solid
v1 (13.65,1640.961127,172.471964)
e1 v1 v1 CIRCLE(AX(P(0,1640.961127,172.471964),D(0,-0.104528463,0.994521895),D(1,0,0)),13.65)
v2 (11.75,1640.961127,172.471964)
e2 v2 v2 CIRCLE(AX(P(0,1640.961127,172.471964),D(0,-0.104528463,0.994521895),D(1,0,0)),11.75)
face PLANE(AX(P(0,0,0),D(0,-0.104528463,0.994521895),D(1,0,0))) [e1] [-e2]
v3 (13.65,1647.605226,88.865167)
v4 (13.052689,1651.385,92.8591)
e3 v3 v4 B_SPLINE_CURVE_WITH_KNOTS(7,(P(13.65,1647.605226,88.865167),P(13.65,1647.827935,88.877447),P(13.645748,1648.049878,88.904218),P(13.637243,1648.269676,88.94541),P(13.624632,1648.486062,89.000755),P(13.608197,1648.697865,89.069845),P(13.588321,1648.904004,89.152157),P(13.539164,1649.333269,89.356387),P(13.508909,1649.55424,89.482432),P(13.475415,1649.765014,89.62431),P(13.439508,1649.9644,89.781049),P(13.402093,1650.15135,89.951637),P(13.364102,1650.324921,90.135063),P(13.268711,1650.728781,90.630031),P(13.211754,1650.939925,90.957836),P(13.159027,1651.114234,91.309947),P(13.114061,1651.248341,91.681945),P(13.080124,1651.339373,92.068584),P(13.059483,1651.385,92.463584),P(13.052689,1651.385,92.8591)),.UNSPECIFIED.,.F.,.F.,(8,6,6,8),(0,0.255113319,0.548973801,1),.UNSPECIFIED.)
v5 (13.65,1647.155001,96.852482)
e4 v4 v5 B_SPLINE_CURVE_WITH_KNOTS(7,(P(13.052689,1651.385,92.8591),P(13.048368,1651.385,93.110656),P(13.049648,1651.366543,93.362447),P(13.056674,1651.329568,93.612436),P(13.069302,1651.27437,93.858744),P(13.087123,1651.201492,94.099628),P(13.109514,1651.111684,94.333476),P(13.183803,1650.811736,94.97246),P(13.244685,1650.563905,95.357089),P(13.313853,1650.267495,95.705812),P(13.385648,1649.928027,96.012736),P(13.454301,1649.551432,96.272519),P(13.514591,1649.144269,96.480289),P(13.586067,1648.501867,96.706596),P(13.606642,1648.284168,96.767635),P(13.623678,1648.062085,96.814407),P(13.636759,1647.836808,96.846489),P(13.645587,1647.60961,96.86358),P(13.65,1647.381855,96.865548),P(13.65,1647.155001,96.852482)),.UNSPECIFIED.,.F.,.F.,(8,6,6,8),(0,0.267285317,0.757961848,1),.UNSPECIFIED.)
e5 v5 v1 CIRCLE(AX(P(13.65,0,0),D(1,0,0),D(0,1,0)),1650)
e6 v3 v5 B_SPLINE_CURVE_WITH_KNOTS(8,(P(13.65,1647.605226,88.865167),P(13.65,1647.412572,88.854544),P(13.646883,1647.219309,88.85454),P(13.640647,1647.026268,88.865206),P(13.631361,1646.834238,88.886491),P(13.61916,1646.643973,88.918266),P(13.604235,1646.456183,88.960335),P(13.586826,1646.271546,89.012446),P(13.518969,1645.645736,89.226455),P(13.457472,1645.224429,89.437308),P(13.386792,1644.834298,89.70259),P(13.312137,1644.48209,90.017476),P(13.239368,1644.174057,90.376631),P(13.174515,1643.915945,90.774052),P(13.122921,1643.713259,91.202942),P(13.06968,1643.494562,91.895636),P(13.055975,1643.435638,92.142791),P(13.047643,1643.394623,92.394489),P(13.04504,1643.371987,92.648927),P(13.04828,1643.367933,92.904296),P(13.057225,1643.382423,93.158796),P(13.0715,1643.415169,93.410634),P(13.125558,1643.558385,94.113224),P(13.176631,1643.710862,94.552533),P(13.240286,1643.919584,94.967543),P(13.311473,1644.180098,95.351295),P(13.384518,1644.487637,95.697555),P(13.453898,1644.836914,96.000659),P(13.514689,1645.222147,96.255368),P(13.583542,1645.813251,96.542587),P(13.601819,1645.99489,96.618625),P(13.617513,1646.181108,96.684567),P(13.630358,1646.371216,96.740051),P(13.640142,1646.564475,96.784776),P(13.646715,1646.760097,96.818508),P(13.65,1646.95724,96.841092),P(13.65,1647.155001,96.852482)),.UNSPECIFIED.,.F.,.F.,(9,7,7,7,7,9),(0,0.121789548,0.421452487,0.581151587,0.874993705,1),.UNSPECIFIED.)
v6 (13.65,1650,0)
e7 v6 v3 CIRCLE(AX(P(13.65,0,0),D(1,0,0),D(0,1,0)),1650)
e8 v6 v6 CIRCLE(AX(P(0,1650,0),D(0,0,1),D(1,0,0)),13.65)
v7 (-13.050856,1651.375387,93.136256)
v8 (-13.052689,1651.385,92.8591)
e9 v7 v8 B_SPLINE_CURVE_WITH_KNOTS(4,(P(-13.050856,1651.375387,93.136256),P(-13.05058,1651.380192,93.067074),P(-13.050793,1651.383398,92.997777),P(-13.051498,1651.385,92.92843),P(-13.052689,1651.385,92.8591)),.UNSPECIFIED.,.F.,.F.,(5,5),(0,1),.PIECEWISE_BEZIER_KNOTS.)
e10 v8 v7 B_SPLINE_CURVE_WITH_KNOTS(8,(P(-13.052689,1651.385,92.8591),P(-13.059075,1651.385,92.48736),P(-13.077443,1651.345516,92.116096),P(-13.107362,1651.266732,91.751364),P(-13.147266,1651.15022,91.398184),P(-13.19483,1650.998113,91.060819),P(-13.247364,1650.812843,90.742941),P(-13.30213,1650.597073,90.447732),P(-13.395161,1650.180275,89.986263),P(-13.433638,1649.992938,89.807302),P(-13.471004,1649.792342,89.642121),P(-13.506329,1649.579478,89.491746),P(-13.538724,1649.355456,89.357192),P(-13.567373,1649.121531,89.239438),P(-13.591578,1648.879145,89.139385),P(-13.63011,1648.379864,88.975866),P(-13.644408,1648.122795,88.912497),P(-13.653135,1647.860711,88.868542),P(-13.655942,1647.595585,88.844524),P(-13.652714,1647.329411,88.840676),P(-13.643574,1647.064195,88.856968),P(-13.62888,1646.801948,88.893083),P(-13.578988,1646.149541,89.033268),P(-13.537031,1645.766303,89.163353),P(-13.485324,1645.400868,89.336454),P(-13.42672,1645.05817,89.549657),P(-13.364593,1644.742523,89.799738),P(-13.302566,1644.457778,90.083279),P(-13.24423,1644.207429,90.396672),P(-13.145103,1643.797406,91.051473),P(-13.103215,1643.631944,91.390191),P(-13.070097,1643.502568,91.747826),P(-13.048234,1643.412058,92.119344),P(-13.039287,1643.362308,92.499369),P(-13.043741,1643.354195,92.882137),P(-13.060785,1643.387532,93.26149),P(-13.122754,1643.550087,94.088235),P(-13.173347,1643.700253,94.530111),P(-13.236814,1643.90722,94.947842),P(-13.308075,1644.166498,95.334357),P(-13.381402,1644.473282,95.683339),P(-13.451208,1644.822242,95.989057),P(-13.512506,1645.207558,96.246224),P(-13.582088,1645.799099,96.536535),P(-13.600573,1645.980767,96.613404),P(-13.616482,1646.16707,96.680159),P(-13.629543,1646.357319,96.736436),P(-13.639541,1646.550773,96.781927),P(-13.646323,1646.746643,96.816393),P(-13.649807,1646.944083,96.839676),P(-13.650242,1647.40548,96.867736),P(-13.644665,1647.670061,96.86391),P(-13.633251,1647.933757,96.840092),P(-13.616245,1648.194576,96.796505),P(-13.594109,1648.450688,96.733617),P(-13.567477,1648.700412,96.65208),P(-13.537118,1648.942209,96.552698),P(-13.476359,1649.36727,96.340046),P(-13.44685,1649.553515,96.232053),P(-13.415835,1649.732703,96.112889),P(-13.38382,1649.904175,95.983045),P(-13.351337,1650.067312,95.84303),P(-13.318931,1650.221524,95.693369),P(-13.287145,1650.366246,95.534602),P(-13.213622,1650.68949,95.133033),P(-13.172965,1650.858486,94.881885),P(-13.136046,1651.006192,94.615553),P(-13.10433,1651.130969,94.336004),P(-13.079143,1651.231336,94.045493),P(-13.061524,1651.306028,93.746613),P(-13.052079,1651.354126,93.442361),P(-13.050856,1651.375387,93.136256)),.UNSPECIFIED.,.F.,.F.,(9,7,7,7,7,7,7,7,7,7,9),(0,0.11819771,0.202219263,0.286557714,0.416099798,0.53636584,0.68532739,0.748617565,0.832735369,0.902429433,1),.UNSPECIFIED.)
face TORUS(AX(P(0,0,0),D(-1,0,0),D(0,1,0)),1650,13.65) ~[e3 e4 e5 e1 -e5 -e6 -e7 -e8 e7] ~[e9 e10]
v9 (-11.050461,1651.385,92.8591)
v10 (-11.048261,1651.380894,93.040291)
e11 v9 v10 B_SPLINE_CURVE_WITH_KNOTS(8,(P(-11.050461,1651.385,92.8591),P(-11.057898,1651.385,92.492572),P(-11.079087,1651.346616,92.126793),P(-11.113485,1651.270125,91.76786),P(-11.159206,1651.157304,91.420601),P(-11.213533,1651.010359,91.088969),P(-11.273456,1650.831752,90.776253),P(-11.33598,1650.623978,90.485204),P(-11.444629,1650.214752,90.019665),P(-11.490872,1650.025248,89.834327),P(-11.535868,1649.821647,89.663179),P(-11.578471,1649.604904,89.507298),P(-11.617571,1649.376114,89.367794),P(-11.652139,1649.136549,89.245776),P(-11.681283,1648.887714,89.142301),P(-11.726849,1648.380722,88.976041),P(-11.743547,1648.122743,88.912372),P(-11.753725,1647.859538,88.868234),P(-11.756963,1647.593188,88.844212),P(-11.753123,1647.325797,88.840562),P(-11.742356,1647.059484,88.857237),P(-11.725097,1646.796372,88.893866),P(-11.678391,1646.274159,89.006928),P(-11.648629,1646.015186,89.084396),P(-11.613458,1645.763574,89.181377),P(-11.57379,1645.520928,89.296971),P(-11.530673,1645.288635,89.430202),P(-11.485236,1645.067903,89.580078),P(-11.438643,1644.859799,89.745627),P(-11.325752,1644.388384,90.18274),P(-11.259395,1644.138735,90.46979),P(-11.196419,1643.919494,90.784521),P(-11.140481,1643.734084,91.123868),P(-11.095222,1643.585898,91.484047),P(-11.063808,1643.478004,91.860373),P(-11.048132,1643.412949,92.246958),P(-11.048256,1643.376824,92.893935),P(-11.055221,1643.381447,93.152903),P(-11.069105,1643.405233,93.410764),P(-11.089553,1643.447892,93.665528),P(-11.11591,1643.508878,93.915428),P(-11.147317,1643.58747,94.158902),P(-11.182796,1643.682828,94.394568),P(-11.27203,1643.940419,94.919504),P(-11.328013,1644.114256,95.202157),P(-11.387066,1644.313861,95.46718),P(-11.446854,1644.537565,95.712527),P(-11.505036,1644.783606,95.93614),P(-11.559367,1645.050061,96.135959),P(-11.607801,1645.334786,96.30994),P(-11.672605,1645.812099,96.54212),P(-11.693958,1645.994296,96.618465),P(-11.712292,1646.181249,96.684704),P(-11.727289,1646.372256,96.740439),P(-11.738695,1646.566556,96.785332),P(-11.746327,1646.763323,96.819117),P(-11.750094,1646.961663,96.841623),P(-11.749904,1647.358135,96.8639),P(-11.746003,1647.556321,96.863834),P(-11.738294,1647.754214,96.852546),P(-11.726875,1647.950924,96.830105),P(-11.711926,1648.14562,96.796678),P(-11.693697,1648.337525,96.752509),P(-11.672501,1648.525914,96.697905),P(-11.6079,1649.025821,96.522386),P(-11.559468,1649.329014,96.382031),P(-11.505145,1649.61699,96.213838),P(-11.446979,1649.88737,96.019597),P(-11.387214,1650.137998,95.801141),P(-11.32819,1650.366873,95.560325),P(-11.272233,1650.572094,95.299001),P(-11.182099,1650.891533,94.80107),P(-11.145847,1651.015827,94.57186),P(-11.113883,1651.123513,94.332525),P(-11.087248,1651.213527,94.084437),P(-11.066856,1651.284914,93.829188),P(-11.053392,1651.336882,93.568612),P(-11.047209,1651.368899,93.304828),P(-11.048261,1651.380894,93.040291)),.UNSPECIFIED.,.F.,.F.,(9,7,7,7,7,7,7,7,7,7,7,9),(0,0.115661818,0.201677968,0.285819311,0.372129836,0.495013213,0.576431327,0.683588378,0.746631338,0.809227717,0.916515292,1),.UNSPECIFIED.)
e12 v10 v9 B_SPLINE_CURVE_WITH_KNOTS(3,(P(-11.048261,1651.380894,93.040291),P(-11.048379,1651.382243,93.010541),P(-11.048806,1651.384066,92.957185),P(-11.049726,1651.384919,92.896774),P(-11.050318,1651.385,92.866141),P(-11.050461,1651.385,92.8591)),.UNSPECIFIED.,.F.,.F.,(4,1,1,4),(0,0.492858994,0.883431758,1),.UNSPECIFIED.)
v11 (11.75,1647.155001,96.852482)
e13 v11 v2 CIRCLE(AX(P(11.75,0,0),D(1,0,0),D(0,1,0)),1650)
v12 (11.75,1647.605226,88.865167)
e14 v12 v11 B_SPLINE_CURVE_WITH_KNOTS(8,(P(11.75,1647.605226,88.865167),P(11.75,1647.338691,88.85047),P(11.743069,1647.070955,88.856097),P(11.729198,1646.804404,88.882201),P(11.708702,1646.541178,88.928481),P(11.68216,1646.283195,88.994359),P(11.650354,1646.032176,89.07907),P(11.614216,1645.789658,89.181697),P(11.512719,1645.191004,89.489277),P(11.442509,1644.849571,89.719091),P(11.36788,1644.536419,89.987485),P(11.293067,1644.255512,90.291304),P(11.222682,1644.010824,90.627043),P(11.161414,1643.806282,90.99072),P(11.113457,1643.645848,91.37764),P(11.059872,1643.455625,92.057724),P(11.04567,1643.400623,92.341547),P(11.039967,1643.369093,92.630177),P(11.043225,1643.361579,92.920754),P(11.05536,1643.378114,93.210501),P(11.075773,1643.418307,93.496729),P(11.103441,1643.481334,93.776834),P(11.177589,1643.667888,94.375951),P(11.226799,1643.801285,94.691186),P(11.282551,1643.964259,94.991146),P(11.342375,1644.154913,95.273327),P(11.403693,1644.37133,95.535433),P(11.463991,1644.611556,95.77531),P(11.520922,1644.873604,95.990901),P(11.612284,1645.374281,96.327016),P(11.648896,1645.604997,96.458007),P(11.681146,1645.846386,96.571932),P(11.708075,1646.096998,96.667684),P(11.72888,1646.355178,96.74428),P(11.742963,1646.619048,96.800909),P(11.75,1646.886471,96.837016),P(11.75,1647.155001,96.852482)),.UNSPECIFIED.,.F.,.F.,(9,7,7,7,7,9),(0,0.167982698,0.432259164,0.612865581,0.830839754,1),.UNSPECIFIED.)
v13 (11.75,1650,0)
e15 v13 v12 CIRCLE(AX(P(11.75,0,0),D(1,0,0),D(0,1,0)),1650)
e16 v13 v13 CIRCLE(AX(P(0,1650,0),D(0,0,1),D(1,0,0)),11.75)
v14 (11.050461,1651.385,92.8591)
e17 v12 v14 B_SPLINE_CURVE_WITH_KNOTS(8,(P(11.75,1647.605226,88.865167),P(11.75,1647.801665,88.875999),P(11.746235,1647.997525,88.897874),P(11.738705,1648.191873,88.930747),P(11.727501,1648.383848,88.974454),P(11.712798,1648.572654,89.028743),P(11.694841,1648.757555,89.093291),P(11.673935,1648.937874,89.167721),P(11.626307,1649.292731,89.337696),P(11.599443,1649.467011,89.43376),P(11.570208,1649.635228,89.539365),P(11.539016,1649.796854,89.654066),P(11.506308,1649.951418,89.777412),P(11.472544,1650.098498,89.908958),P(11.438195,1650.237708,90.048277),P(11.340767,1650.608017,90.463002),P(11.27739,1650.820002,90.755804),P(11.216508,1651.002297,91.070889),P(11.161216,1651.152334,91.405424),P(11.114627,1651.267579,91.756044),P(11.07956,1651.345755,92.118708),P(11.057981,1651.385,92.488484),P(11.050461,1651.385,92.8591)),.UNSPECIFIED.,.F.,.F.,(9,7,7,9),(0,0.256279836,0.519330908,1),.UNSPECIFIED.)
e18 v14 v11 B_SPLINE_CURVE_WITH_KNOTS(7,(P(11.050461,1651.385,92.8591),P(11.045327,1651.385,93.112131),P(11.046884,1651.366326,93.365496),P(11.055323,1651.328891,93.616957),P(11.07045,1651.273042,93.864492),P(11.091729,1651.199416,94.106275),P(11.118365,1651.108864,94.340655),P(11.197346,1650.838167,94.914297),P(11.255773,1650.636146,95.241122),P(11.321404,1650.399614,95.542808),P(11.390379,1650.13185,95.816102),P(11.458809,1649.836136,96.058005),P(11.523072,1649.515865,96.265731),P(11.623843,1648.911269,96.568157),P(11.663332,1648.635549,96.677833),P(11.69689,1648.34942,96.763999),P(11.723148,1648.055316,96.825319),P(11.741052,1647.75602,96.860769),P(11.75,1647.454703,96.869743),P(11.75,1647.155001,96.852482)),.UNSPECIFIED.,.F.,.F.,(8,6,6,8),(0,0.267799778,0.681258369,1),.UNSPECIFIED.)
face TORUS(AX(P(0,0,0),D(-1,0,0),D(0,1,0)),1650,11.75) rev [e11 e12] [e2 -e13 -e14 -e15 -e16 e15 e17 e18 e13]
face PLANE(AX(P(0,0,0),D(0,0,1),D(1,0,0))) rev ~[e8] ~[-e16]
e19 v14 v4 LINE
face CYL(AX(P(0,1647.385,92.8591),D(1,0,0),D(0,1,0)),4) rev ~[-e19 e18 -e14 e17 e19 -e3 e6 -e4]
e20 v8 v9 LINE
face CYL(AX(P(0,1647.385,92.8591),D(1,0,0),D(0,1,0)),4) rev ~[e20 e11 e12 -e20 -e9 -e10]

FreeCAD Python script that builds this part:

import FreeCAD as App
import Part
import Sketcher

V = App.Vector
Q = App.Units.Quantity

doc = App.newDocument("Part")
params = doc.addObject("Spreadsheet::Sheet", "Params")
for row, (alias, value) in enumerate([
    ("sketch1_diameter", "27.3 mm"),
    ("sketch1_diameter2", "23.5 mm"),
    ("revolution_angle", "6 deg"),
    ("sketch2_diameter", "8 mm"),
    ("pocket1_length", "100 mm"),
], start=1):
    params.set(f"A{row}", alias)
    params.set(f"B{row}", "=" + value)
    params.setAlias(f"B{row}", alias)

body = doc.addObject("PartDesign::Body", "Body")

# Sketch on XY plane
sketch1 = body.newObject("Sketcher::SketchObject", "Sketch")
sketch1.AttachmentSupport = (doc.getObject("XY_Plane"), [""])
sketch1.MapMode = "FlatFace"
sketch1.addGeometry(Part.Circle(V(0, 1650, 0), V(0, 0, 1), 14), False)
sketch1.addGeometry(Part.Circle(V(0, 1650, 0), V(0, 0, 1), 12), False)
sketch1.addConstraint(Sketcher.Constraint("Coincident", 1, 3, 0, 3))
sketch1.addConstraint(Sketcher.Constraint("PointOnObject", 0, 3, -2))
sketch1.addConstraint(Sketcher.Constraint("Diameter", 0, Q("27.3 mm")))
sketch1.addConstraint(Sketcher.Constraint("DistanceY", -1, 1, 0, 3, Q("1650 mm")))
sketch1.addConstraint(Sketcher.Constraint("Diameter", 1, Q("23.5 mm")))
sketch1.setExpression("Constraints[2]", "Params.sketch1_diameter")
sketch1.setExpression("Constraints[4]", "Params.sketch1_diameter2")
revolution = body.newObject("PartDesign::Revolution", "Revolution")
revolution.Profile = sketch1
revolution.ReferenceAxis = (sketch1, ["H_Axis"])
revolution.setExpression("Angle", "Params.revolution_angle")

# Sketch on YZ plane
sketch2 = body.newObject("Sketcher::SketchObject", "Sketch001")
sketch2.AttachmentSupport = (doc.getObject("YZ_Plane"), [""])
sketch2.MapMode = "FlatFace"
sketch2.addGeometry(Part.Circle(V(1647.4, 92.9, 0), V(0, 0, 1), 4), False)
sketch2.addConstraint(Sketcher.Constraint("Diameter", 0, Q("8 mm")))
sketch2.addConstraint(Sketcher.Constraint("DistanceX", -1, 1, 0, 3, Q("1647.385 mm")))
sketch2.addConstraint(Sketcher.Constraint("DistanceY", -1, 1, 0, 3, Q("92.859 mm")))
sketch2.setExpression("Constraints[0]", "Params.sketch2_diameter")
pocket1 = body.newObject("PartDesign::Pocket", "Pocket")
pocket1.Profile = sketch2
pocket1.setExpression("Length", "Params.pocket1_length")
pocket1.Midplane = True

doc.recompute()
